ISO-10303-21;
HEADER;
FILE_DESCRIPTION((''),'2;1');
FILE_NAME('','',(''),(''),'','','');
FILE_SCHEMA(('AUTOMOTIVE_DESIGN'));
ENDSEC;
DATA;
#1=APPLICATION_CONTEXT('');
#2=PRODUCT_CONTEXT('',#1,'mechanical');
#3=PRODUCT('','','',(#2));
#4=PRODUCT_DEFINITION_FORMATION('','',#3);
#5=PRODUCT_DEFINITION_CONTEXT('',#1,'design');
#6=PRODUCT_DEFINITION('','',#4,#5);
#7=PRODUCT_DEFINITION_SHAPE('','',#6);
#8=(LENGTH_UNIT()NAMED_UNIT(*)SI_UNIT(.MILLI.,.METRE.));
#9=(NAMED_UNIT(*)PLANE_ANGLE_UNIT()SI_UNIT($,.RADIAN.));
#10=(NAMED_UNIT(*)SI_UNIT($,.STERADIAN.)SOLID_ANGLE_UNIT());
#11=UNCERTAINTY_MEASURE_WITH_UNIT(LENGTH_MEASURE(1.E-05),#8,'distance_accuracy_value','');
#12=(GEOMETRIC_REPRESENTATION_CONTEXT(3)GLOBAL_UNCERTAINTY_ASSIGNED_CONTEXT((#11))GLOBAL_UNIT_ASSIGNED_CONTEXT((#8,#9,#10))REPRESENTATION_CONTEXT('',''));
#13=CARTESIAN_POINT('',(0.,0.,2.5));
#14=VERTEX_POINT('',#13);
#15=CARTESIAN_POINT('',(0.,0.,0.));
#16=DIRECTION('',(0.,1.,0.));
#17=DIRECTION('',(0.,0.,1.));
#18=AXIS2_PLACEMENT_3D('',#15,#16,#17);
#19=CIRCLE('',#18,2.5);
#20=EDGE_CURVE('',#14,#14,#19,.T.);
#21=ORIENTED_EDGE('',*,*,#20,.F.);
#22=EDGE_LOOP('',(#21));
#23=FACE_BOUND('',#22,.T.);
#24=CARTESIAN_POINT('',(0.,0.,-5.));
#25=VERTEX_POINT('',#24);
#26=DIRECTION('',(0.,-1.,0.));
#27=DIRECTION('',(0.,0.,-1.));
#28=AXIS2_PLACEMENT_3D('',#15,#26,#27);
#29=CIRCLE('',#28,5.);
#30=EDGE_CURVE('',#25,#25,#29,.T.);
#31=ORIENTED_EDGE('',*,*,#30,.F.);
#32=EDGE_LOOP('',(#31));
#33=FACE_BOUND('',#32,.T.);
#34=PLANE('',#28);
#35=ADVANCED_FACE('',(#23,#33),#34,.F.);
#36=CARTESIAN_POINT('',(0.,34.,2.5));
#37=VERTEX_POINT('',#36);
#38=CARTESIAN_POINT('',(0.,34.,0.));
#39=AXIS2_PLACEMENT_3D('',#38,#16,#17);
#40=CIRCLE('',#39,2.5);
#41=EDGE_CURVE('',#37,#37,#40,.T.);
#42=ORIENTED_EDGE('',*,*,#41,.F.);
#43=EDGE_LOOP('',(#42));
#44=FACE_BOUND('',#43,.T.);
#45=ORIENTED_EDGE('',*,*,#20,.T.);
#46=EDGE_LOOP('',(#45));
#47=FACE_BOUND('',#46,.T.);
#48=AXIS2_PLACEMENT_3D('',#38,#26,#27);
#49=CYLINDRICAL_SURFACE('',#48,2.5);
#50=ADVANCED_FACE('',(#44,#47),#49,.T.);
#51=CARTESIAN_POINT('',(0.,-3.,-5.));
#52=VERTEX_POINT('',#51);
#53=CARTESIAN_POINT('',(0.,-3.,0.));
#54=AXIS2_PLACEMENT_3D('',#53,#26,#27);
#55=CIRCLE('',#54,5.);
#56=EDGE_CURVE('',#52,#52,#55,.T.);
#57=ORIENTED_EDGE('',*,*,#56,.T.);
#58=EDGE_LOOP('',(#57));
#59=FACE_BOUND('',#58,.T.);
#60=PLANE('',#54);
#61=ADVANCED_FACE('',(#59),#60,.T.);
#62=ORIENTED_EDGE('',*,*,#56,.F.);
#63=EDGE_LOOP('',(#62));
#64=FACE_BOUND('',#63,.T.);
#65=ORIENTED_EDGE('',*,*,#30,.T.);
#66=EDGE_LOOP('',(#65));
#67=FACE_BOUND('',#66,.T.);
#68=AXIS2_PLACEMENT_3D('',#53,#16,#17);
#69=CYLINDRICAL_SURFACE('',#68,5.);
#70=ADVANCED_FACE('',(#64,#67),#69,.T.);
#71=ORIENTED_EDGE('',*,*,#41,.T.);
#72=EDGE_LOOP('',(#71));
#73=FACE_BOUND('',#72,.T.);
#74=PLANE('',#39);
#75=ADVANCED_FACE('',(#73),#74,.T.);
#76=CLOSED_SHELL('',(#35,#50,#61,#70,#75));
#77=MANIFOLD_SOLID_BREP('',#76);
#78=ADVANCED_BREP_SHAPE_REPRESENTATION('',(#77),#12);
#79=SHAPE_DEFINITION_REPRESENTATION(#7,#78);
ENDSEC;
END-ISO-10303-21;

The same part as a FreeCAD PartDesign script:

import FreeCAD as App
import Part
import Sketcher
from FreeCAD import Vector
Q = App.Units.Quantity

doc = App.newDocument("Part")
body = doc.addObject("PartDesign::Body", "Body")

# Sketch on XZ plane
sketch1 = doc.addObject("Sketcher::SketchObject", "Sketch")
body.addObject(sketch1)
sketch1.AttachmentSupport = (doc.XZ_Plane, [""])
sketch1.MapMode = "FlatFace"
sketch1.addGeometry(Part.Circle(Vector(0, 0, 0), Vector(0, 0, 1), 2.5), False)
sketch1.addConstraint(Sketcher.Constraint("Coincident", 0, 3, -1, 1))
sketch1.addConstraint(Sketcher.Constraint("Diameter", 0, Q("5 mm")))
pad1 = doc.addObject("PartDesign::Pad", "Pad")
body.addObject(pad1)
pad1.Profile = sketch1
pad1.Length = 34
pad1.Reversed = True

# Sketch on XZ plane
sketch2 = doc.addObject("Sketcher::SketchObject", "Sketch001")
body.addObject(sketch2)
sketch2.AttachmentSupport = (doc.XZ_Plane, [""])
sketch2.MapMode = "FlatFace"
sketch2.addGeometry(Part.Circle(Vector(0, 0, 0), Vector(0, 0, 1), 5), False)
sketch2.addConstraint(Sketcher.Constraint("Coincident", 0, 3, -1, 1))
sketch2.addConstraint(Sketcher.Constraint("Diameter", 0, Q("10 mm")))
pad2 = doc.addObject("PartDesign::Pad", "Pad001")
body.addObject(pad2)
pad2.Profile = sketch2
pad2.Length = 3

doc.recompute()
